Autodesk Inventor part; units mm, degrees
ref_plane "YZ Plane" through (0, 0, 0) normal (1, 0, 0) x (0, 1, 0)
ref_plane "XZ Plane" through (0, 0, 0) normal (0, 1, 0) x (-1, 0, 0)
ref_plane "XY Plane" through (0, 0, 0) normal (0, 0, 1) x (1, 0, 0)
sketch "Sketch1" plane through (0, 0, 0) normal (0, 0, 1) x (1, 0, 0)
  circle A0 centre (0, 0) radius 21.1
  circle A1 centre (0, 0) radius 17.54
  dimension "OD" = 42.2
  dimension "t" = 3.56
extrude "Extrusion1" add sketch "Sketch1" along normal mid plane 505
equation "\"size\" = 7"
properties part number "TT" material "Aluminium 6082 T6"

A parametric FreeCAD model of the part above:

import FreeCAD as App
import Part
import Sketcher
from FreeCAD import Vector

doc = App.newDocument("Part")
body = doc.addObject("PartDesign::Body", "Body")

# Sketch on XY plane
sketch1 = body.newObject("Sketcher::SketchObject", "Sketch")
sketch1.AttachmentSupport = (doc.getObject("XY_Plane"), [""])
sketch1.MapMode = "FlatFace"
sketch1.addGeometry([
    Part.Circle(Vector(0, 0, 0), Vector(0, 0, 1), 21),
    Part.Circle(Vector(0, 0, 0), Vector(0, 0, 1), 18),
], False)
sketch1.addConstraint([
    Sketcher.Constraint("Coincident", 0, 3, -1, 1),
    Sketcher.Constraint("Coincident", 1, 3, -1, 1),
    Sketcher.Constraint("Diameter", 0, 42.2),
    Sketcher.Constraint("Diameter", 1, 35.08),
])
pad1 = body.newObject("PartDesign::Pad", "Pad")
pad1.Profile = sketch1
pad1.Length = 505
pad1.Midplane = True

doc.recompute()
